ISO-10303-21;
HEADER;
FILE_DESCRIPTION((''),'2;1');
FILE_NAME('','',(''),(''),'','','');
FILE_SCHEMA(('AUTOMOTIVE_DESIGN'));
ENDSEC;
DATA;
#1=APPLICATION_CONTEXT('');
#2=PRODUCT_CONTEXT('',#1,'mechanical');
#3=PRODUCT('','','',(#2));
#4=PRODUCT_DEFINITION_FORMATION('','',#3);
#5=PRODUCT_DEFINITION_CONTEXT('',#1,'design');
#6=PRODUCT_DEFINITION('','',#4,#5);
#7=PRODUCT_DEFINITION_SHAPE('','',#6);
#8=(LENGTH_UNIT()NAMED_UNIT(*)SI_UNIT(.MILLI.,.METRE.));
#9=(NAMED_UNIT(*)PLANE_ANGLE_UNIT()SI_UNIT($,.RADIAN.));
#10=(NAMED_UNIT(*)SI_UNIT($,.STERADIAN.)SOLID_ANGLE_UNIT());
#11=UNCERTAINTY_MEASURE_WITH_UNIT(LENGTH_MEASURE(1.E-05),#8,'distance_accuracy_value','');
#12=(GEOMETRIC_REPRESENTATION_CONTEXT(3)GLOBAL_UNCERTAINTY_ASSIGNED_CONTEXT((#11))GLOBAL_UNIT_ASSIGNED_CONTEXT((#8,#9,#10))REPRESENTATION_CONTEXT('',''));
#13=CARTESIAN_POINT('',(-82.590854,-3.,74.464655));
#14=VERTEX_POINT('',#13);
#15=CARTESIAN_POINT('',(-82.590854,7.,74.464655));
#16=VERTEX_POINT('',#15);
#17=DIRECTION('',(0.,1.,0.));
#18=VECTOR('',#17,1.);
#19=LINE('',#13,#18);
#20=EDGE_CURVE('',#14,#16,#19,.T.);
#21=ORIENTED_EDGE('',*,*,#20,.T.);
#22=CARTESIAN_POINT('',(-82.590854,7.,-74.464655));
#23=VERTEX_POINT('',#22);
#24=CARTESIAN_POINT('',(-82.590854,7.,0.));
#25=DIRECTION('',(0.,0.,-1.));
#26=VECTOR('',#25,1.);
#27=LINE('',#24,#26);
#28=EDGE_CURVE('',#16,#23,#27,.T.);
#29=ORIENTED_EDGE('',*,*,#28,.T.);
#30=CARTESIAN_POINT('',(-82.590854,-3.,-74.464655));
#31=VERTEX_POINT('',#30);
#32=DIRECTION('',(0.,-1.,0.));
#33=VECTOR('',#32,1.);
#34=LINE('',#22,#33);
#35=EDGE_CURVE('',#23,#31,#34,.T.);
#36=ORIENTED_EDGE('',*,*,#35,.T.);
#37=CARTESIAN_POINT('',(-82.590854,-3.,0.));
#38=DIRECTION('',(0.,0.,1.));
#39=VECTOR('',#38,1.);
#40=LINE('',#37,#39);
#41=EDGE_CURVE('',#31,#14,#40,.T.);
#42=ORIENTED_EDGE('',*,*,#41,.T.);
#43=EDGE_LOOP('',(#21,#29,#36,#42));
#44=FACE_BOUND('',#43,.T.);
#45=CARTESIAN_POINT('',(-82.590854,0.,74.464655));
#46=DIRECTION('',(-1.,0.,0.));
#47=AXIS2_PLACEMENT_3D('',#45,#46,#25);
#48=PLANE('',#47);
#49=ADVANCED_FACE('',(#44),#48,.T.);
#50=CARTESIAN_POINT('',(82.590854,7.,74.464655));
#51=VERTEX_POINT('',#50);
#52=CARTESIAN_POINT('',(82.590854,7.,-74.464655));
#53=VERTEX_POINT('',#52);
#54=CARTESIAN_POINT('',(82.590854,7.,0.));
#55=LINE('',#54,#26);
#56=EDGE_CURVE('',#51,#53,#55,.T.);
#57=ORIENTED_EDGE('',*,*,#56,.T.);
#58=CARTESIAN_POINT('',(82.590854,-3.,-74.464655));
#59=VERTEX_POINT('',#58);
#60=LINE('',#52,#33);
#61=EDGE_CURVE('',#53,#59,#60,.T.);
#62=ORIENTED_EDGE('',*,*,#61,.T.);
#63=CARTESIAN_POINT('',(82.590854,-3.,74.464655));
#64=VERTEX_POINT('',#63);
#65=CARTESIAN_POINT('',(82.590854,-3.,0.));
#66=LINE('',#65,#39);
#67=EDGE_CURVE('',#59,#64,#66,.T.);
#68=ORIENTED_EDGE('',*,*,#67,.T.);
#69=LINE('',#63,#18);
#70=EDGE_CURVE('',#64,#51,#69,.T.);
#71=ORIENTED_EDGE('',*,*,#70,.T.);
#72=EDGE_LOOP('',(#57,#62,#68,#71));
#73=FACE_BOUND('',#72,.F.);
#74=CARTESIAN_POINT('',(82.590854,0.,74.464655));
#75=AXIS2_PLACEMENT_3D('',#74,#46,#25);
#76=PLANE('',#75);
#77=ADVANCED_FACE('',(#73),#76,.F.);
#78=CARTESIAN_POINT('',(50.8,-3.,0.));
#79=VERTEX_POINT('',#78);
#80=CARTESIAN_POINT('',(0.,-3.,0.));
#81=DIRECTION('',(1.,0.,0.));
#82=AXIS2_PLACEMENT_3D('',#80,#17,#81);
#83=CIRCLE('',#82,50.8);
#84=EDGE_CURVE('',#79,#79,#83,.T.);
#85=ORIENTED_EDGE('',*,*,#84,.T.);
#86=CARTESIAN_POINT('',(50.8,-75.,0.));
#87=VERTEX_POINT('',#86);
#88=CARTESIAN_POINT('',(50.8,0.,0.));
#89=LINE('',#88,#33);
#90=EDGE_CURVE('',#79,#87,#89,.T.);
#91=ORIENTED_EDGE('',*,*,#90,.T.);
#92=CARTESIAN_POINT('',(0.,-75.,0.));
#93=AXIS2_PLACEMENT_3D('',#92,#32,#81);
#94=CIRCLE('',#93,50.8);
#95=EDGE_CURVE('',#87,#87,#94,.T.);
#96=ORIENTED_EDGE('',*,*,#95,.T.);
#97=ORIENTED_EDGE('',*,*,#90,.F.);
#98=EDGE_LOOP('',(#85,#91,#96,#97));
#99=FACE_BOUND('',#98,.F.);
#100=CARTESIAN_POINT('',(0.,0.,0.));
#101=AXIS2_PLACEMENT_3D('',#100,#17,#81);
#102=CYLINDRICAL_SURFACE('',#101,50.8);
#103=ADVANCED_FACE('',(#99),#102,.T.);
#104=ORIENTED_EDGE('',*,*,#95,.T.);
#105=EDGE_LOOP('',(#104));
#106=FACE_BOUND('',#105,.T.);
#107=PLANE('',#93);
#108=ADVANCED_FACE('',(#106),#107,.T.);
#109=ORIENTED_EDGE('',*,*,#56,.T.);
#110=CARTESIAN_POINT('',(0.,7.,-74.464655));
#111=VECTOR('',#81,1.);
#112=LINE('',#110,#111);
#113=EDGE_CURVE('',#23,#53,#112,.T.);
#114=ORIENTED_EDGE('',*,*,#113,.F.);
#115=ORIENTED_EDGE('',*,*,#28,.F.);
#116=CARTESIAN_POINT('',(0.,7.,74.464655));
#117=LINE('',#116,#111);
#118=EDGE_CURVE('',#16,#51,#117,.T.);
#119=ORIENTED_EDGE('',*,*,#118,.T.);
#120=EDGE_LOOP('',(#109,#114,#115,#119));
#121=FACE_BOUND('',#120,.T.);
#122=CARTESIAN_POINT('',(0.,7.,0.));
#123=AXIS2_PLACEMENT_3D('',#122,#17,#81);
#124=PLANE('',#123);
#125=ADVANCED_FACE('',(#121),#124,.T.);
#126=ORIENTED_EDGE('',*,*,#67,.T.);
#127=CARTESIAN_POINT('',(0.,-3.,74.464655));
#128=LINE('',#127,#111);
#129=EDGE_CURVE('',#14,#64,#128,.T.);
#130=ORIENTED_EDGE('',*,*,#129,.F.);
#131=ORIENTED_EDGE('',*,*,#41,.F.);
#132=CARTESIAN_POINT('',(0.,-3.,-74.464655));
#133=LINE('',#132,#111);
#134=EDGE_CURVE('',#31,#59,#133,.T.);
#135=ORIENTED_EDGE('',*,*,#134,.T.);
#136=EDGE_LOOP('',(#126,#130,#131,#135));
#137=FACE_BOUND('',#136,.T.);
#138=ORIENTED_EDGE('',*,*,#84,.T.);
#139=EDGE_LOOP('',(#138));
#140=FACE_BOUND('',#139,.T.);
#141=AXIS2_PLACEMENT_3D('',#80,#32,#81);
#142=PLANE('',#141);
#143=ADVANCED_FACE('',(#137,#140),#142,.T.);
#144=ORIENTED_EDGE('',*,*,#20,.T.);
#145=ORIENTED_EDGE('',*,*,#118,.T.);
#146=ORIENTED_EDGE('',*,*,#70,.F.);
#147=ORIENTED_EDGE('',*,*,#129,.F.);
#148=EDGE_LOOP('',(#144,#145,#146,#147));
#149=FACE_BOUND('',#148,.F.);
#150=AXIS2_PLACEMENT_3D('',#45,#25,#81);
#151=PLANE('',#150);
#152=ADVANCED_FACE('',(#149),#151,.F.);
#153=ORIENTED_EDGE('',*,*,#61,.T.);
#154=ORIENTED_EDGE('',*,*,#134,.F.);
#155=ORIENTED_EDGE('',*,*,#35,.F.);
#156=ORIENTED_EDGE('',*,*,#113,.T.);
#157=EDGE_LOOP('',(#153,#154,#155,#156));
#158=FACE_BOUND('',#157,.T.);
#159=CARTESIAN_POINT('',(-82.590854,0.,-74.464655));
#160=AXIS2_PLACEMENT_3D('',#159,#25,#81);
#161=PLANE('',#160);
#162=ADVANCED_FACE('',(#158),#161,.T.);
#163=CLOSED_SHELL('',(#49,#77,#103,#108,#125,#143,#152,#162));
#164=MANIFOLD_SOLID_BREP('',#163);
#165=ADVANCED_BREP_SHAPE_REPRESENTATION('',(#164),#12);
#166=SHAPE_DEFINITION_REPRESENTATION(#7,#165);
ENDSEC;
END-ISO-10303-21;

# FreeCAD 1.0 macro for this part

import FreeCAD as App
import Part
import Sketcher


def add_polygon(sketch, points):
    """Adds a closed chain of lines whose ends are joined by coincident constraints."""
    first, n = sketch.GeometryCount, len(points)
    for a, b in zip(points, points[1:] + points[:1]):
        sketch.addGeometry(Part.LineSegment(App.Vector(*a, 0), App.Vector(*b, 0)), False)
    for i in range(n):
        sketch.addConstraint(Sketcher.Constraint("Coincident", first + i, 2, first + (i + 1) % n, 1))

doc = App.newDocument("Part")
body = doc.addObject("PartDesign::Body", "Body")

# Sketch on XZ plane
sketch1 = body.newObject("Sketcher::SketchObject", "Sketch")
sketch1.AttachmentSupport = (doc.getObject("XZ_Plane"), [""])
sketch1.MapMode = "FlatFace"
add_polygon(sketch1, [(-83, 74), (-83, -74), (83, -74), (83, 74)])  # lines 0-3
sketch1.addConstraint(Sketcher.Constraint("Vertical", 0))
sketch1.addConstraint(Sketcher.Constraint("Horizontal", 1))
sketch1.addConstraint(Sketcher.Constraint("Vertical", 2))
sketch1.addConstraint(Sketcher.Constraint("Horizontal", 3))
sketch1.addConstraint(Sketcher.Constraint("Symmetric", 0, 2, 2, 2, -1, 1))
sketch1.addConstraint(Sketcher.Constraint("DistanceY", 0, 2, 0, 1, 148.92931))
sketch1.addConstraint(Sketcher.Constraint("DistanceX", 1, 1, 1, 2, 165.181708))
pad1 = body.newObject("PartDesign::Pad", "Pad")
pad1.Profile = sketch1
pad1.Length = 3

# Sketch on XZ plane
sketch2 = body.newObject("Sketcher::SketchObject", "Sketch001")
sketch2.AttachmentSupport = (doc.getObject("XZ_Plane"), [""])
sketch2.MapMode = "FlatFace"
sketch2.addGeometry(Part.Circle(App.Vector(0, 0, 0), App.Vector(0, 0, 1), 51), False)
sketch2.addConstraint(Sketcher.Constraint("Coincident", 0, 3, -1, 1))
sketch2.addConstraint(Sketcher.Constraint("Diameter", 0, 101.6))
pad2 = body.newObject("PartDesign::Pad", "Pad001")
pad2.Profile = sketch2
pad2.Length = 75

# Sketch on XZ plane
sketch3 = body.newObject("Sketcher::SketchObject", "Sketch002")
sketch3.AttachmentSupport = (doc.getObject("XZ_Plane"), [""])
sketch3.MapMode = "FlatFace"
add_polygon(sketch3, [(-83, -74), (-83, 74), (83, 74), (83, -74)])  # lines 0-3
sketch3.addConstraint(Sketcher.Constraint("Vertical", 0))
sketch3.addConstraint(Sketcher.Constraint("Horizontal", 1))
sketch3.addConstraint(Sketcher.Constraint("Vertical", 2))
sketch3.addConstraint(Sketcher.Constraint("Horizontal", 3))
sketch3.addConstraint(Sketcher.Constraint("Symmetric", 0, 2, 2, 2, -1, 1))
sketch3.addConstraint(Sketcher.Constraint("DistanceY", 0, 1, 0, 2, 148.92931))
sketch3.addConstraint(Sketcher.Constraint("DistanceX", 1, 1, 1, 2, 165.181708))
pad3 = body.newObject("PartDesign::Pad", "Pad002")
pad3.Profile = sketch3
pad3.Length = 7
pad3.Reversed = True

doc.recompute()
